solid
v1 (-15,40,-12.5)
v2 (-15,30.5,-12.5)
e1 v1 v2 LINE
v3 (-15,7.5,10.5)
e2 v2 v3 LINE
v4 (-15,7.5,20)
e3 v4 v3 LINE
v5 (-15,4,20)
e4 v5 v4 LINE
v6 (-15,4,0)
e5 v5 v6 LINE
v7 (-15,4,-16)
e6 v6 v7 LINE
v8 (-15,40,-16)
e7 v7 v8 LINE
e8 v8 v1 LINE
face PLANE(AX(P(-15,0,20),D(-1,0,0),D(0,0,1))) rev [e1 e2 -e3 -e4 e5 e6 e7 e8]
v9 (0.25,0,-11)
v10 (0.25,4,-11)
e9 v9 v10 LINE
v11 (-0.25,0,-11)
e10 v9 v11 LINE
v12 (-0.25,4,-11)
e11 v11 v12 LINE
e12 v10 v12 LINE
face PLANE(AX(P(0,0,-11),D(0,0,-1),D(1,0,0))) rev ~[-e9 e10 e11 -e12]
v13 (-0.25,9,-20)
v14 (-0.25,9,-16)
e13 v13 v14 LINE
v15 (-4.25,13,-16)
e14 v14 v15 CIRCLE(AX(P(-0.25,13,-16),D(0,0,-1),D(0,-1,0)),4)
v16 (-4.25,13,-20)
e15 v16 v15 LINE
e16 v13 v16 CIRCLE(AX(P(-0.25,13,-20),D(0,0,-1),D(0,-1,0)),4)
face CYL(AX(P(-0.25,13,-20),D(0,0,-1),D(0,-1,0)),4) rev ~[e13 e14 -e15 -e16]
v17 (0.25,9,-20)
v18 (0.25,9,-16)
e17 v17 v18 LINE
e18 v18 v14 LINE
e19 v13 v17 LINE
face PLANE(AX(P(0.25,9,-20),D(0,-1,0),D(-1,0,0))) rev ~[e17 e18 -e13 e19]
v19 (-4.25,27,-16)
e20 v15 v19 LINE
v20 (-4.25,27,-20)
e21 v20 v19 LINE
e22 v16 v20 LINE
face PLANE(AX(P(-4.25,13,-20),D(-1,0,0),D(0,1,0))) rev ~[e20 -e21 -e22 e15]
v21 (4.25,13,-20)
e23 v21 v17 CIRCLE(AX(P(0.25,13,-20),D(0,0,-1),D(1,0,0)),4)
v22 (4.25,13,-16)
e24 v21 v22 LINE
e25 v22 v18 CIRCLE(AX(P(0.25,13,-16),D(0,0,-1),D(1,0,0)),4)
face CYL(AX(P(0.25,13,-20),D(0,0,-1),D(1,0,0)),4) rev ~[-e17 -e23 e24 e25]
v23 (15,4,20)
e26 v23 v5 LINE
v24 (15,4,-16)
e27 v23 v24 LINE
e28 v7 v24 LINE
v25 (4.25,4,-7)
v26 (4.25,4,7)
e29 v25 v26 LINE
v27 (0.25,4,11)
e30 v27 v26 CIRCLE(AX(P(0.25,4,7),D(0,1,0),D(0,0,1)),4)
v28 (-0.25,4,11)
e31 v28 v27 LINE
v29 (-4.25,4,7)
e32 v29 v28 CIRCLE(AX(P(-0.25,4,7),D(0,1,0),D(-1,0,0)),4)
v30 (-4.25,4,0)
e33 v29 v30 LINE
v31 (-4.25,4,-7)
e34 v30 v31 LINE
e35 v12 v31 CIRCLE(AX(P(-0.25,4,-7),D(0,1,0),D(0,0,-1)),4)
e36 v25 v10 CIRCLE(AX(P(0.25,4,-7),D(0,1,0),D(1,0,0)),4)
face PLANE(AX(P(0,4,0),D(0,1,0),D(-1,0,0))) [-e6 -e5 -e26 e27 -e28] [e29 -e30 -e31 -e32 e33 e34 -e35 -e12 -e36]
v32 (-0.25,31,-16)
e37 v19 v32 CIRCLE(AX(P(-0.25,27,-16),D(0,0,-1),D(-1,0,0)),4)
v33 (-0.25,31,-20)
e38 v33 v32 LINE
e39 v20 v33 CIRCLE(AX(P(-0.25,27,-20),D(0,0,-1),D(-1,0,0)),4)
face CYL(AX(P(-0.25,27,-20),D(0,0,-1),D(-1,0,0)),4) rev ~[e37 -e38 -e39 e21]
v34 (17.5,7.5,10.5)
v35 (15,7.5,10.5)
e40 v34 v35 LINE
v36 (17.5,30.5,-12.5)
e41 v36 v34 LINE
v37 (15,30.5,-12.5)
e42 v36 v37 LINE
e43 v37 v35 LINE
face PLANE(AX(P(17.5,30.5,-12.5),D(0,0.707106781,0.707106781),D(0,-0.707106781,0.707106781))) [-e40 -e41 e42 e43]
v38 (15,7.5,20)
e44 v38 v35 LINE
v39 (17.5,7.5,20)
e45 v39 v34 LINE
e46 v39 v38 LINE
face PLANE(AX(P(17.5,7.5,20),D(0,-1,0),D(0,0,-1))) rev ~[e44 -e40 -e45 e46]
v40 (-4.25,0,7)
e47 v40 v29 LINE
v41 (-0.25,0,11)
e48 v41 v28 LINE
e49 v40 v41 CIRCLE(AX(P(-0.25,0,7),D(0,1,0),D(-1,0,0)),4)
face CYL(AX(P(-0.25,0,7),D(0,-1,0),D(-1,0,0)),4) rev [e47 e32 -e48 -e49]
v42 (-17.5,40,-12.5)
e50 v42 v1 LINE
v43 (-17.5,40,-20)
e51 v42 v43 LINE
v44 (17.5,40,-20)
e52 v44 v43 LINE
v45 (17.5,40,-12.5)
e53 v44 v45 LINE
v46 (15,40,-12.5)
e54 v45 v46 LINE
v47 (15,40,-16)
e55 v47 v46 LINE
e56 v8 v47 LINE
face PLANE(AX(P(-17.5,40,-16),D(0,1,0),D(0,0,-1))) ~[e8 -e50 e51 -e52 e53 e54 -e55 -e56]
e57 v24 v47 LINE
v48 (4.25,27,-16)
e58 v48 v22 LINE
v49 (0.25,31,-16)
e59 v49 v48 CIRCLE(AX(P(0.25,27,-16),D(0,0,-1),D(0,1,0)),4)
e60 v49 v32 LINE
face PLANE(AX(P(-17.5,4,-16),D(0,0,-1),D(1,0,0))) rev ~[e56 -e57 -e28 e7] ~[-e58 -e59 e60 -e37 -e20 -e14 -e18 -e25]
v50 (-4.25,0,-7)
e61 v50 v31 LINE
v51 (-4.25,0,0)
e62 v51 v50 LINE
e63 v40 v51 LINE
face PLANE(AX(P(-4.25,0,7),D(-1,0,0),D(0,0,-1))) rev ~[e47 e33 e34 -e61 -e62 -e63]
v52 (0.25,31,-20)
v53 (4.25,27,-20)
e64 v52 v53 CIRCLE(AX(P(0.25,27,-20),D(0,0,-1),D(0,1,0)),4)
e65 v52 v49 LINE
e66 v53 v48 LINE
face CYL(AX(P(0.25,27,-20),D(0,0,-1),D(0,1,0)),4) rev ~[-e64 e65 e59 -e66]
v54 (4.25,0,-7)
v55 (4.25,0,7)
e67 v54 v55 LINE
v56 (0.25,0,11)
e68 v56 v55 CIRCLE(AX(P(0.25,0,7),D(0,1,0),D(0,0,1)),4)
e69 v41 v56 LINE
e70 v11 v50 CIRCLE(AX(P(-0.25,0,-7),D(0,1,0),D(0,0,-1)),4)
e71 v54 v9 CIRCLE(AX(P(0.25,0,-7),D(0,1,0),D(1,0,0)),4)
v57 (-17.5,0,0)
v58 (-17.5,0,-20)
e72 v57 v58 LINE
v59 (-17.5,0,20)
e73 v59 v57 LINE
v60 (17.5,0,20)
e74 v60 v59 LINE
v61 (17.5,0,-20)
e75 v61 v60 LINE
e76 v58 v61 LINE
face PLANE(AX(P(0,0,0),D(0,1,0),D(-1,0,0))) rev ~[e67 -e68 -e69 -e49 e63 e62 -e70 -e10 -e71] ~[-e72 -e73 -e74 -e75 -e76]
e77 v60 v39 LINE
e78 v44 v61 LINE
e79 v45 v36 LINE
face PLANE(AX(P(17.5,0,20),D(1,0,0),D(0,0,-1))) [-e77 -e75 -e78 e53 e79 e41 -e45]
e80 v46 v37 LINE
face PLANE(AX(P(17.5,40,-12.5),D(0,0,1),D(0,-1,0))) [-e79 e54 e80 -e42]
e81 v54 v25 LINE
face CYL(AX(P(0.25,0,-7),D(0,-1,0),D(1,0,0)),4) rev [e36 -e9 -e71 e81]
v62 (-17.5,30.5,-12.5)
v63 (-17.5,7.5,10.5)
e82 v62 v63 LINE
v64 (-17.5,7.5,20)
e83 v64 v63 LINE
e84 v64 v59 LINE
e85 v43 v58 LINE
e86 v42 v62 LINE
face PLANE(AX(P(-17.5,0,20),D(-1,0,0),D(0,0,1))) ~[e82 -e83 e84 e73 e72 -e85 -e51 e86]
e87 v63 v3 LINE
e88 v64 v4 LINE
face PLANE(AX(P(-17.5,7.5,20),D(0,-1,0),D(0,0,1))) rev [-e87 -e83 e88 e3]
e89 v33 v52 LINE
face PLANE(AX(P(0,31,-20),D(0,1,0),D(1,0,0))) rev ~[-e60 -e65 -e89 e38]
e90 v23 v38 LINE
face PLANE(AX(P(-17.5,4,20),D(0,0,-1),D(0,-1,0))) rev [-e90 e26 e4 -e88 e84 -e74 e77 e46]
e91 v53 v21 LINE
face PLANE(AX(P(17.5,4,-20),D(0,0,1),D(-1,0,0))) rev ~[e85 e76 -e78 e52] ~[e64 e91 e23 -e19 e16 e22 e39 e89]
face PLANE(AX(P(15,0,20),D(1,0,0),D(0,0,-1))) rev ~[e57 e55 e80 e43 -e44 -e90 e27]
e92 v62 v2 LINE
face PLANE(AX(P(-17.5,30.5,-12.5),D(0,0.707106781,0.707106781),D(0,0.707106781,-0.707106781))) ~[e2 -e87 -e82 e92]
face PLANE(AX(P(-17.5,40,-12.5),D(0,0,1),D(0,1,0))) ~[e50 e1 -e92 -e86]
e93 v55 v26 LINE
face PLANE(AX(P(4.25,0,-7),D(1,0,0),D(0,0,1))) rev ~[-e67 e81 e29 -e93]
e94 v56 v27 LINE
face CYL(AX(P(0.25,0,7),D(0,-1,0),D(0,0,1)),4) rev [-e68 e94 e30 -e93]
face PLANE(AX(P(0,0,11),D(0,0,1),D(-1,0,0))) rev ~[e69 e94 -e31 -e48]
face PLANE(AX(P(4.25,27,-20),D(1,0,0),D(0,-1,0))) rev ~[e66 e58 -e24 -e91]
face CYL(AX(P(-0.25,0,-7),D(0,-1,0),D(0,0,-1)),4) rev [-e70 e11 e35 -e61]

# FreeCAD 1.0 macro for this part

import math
import FreeCAD as App
import Part
import Sketcher

doc = App.newDocument("Part")
params = doc.addObject("Spreadsheet::Sheet", "Params")
for row, (alias, value) in enumerate([
    ("sketch1_radius", "4 mm"),
    ("sketch1_width", "35 mm"),
    ("sketch1_height", "20 mm"),
    ("pad1_length", "4 mm"),
    ("sketch2_height", "4 mm"),
    ("sketch2_width", "35 mm"),
    ("pad2_length", "36 mm"),
    ("sketch3_radius", "4 mm"),
    ("sketch3_height", "14 mm"),
    ("pocket1_length", "4 mm"),
    ("sketch4_width", "3.5 mm"),
    ("sketch4_width2", "9.5 mm"),
    ("sketch4_width3", "36 mm"),
    ("pad3_length", "2.5 mm"),
], start=1):
    params.set(f"A{row}", alias)
    params.set(f"B{row}", "=" + value)
    params.setAlias(f"B{row}", alias)

body = doc.addObject("PartDesign::Body", "Body")

# Sketch on XZ plane
sketch1 = doc.addObject("Sketcher::SketchObject", "Sketch")
body.addObject(sketch1)
sketch1.AttachmentSupport = (doc.XZ_Plane, [""])
sketch1.MapMode = "FlatFace"
sketch1.addGeometry([
    Part.LineSegment(App.Vector(-17.5, -20, 0), App.Vector(-17.5, 0, 0)),  # 0
    Part.LineSegment(App.Vector(-17.5, 0, 0), App.Vector(-17.5, 20, 0)),  # 1
    Part.LineSegment(App.Vector(-17.5, 20, 0), App.Vector(17.5, 20, 0)),  # 2
    Part.LineSegment(App.Vector(17.5, 20, 0), App.Vector(17.5, -20, 0)),  # 3
    Part.LineSegment(App.Vector(17.5, -20, 0), App.Vector(-17.5, -20, 0)),  # 4
    Part.LineSegment(App.Vector(-4.25, 7, 0), App.Vector(-4.25, 0, 0)),  # 5
    Part.LineSegment(App.Vector(-4.25, 0, 0), App.Vector(-4.25, -7, 0)),  # 6
    Part.ArcOfCircle(Part.Circle(App.Vector(-0.25, -7, 0), App.Vector(0, 0, 1), 4), math.radians(180), math.radians(270)),  # 7
    Part.LineSegment(App.Vector(-0.25, -11, 0), App.Vector(0.25, -11, 0)),  # 8
    Part.ArcOfCircle(Part.Circle(App.Vector(0.25, -7, 0), App.Vector(0, 0, 1), 4), math.radians(-90), math.radians(0)),  # 9
    Part.LineSegment(App.Vector(4.25, -7, 0), App.Vector(4.25, 7, 0)),  # 10
    Part.ArcOfCircle(Part.Circle(App.Vector(0.25, 7, 0), App.Vector(0, 0, 1), 4), math.radians(0), math.radians(90)),  # 11
    Part.LineSegment(App.Vector(0.25, 11, 0), App.Vector(-0.25, 11, 0)),  # 12
    Part.ArcOfCircle(Part.Circle(App.Vector(-0.25, 7, 0), App.Vector(0, 0, 1), 4), math.radians(90), math.radians(180)),  # 13
], False)
sketch1.addConstraint([
    Sketcher.Constraint("Coincident", 0, 2, 1, 1),
    Sketcher.Constraint("Coincident", 1, 2, 2, 1),
    Sketcher.Constraint("Coincident", 2, 2, 3, 1),
    Sketcher.Constraint("Coincident", 3, 2, 4, 1),
    Sketcher.Constraint("Coincident", 4, 2, 0, 1),
    Sketcher.Constraint("Coincident", 5, 2, 6, 1),
    Sketcher.Constraint("Tangent", 6, 2, 7, 1),
    Sketcher.Constraint("Tangent", 7, 2, 8, 1),
    Sketcher.Constraint("Tangent", 8, 2, 9, 1),
    Sketcher.Constraint("Tangent", 9, 2, 10, 1),
    Sketcher.Constraint("Tangent", 10, 2, 11, 1),
    Sketcher.Constraint("Tangent", 11, 2, 12, 1),
    Sketcher.Constraint("Tangent", 12, 2, 13, 1),
    Sketcher.Constraint("Tangent", 13, 2, 5, 1),
    Sketcher.Constraint("Vertical", 0),
    Sketcher.Constraint("Vertical", 1),
    Sketcher.Constraint("Horizontal", 2),
    Sketcher.Constraint("Vertical", 3),
    Sketcher.Constraint("Horizontal", 4),
    Sketcher.Constraint("Vertical", 5),
    Sketcher.Constraint("Vertical", 6),
    Sketcher.Constraint("Horizontal", 8),
    Sketcher.Constraint("Vertical", 10),
    Sketcher.Constraint("Horizontal", 12),
    Sketcher.Constraint("Equal", 7, 9),
    Sketcher.Constraint("Equal", 9, 11),
    Sketcher.Constraint("Equal", 11, 13),
    Sketcher.Constraint("Symmetric", 7, 3, 11, 3, -1, 1),
    Sketcher.Constraint("Symmetric", 1, 2, 3, 2, -1, 1),
    Sketcher.Constraint("PointOnObject", 0, 2, -1),
    Sketcher.Constraint("PointOnObject", 5, 2, -1),
    Sketcher.Constraint("Radius", 7, 4.0),
    Sketcher.Constraint("DistanceX", 2, 1, 2, 2, 35.0),
    Sketcher.Constraint("DistanceY", 0, 1, 0, 2, 20.0),
    Sketcher.Constraint("DistanceY", 7, 2, -1, 1, 11.0),
    Sketcher.Constraint("DistanceX", 6, 2, 9, 2, 8.5),
])
sketch1.setExpression("Constraints[31]", "Params.sketch1_radius")
sketch1.setExpression("Constraints[32]", "Params.sketch1_width")
sketch1.setExpression("Constraints[33]", "Params.sketch1_height")
pad1 = doc.addObject("PartDesign::Pad", "Pad")
body.addObject(pad1)
pad1.Profile = sketch1
pad1.setExpression("Length", "Params.pad1_length")
pad1.Reversed = True

# Sketch on XZ plane
sketch2 = doc.addObject("Sketcher::SketchObject", "Sketch001")
body.addObject(sketch2)
sketch2.AttachmentSupport = (doc.XZ_Plane, [""])
sketch2.MapMode = "FlatFace"
sketch2.AttachmentOffset = App.Placement(App.Vector(0, 0, -4), App.Rotation())
sketch2.addGeometry([
    Part.LineSegment(App.Vector(-17.5, -20, 0), App.Vector(-17.5, -16, 0)),
    Part.LineSegment(App.Vector(-17.5, -16, 0), App.Vector(17.5, -16, 0)),
    Part.LineSegment(App.Vector(17.5, -16, 0), App.Vector(17.5, -20, 0)),
    Part.LineSegment(App.Vector(17.5, -20, 0), App.Vector(-17.5, -20, 0)),
], False)
sketch2.addConstraint([
    Sketcher.Constraint("Coincident", 0, 2, 1, 1),
    Sketcher.Constraint("Coincident", 1, 2, 2, 1),
    Sketcher.Constraint("Coincident", 2, 2, 3, 1),
    Sketcher.Constraint("Coincident", 3, 2, 0, 1),
    Sketcher.Constraint("Vertical", 0),
    Sketcher.Constraint("Horizontal", 1),
    Sketcher.Constraint("Vertical", 2),
    Sketcher.Constraint("Horizontal", 3),
    Sketcher.Constraint("DistanceY", 0, 1, 0, 2, 4.0),
    Sketcher.Constraint("DistanceX", 1, 1, 1, 2, 35.0),
    Sketcher.Constraint("DistanceY", 0, 2, -1, 1, 16.0),
    Sketcher.Constraint("DistanceX", 0, 2, -1, 1, 17.5),
])
sketch2.setExpression("Constraints[8]", "Params.sketch2_height")
sketch2.setExpression("Constraints[9]", "Params.sketch2_width")
pad2 = doc.addObject("PartDesign::Pad", "Pad001")
body.addObject(pad2)
pad2.Profile = sketch2
pad2.setExpression("Length", "Params.pad2_length")
pad2.Reversed = True

# Sketch on XY plane
sketch3 = doc.addObject("Sketcher::SketchObject", "Sketch002")
body.addObject(sketch3)
sketch3.AttachmentSupport = (doc.XY_Plane, [""])
sketch3.MapMode = "FlatFace"
sketch3.AttachmentOffset = App.Placement(App.Vector(0, 0, -20), App.Rotation())
sketch3.addGeometry([
    Part.LineSegment(App.Vector(0.25, 9, 0), App.Vector(-0.25, 9, 0)),  # 0
    Part.ArcOfCircle(Part.Circle(App.Vector(-0.25, 13, 0), App.Vector(0, 0, 1), 4), math.radians(180), math.radians(270)),  # 1
    Part.LineSegment(App.Vector(-4.25, 13, 0), App.Vector(-4.25, 27, 0)),  # 2
    Part.ArcOfCircle(Part.Circle(App.Vector(-0.25, 27, 0), App.Vector(0, 0, 1), 4), math.radians(90), math.radians(180)),  # 3
    Part.LineSegment(App.Vector(-0.25, 31, 0), App.Vector(0.25, 31, 0)),  # 4
    Part.ArcOfCircle(Part.Circle(App.Vector(0.25, 27, 0), App.Vector(0, 0, 1), 4), math.radians(0), math.radians(90)),  # 5
    Part.LineSegment(App.Vector(4.25, 27, 0), App.Vector(4.25, 13, 0)),  # 6
    Part.ArcOfCircle(Part.Circle(App.Vector(0.25, 13, 0), App.Vector(0, 0, 1), 4), math.radians(-90), math.radians(0)),  # 7
], False)
sketch3.addConstraint([
    Sketcher.Constraint("Tangent", 0, 2, 1, 2),
    Sketcher.Constraint("Tangent", 1, 1, 2, 1),
    Sketcher.Constraint("Tangent", 2, 2, 3, 2),
    Sketcher.Constraint("Tangent", 3, 1, 4, 1),
    Sketcher.Constraint("Tangent", 4, 2, 5, 2),
    Sketcher.Constraint("Tangent", 5, 1, 6, 1),
    Sketcher.Constraint("Tangent", 6, 2, 7, 2),
    Sketcher.Constraint("Tangent", 7, 1, 0, 1),
    Sketcher.Constraint("Horizontal", 0),
    Sketcher.Constraint("Vertical", 2),
    Sketcher.Constraint("Horizontal", 4),
    Sketcher.Constraint("Vertical", 6),
    Sketcher.Constraint("Equal", 1, 3),
    Sketcher.Constraint("Equal", 3, 5),
    Sketcher.Constraint("Equal", 5, 7),
    Sketcher.Constraint("Radius", 1, 4.0),
    Sketcher.Constraint("DistanceX", 2, 2, 5, 1, 8.5),
    Sketcher.Constraint("DistanceY", 2, 1, 2, 2, 14.0),
    Sketcher.Constraint("DistanceX", 1, 1, -1, 1, 4.25),
    Sketcher.Constraint("DistanceY", -1, 1, 1, 3, 13.0),
])
sketch3.setExpression("Constraints[15]", "Params.sketch3_radius")
sketch3.setExpression("Constraints[17]", "Params.sketch3_height")
pocket1 = doc.addObject("PartDesign::Pocket", "Pocket")
body.addObject(pocket1)
pocket1.Profile = sketch3
pocket1.setExpression("Length", "Params.pocket1_length")
pocket1.Reversed = True

# Sketch on YZ plane
sketch4 = doc.addObject("Sketcher::SketchObject", "Sketch003")
body.addObject(sketch4)
sketch4.AttachmentSupport = (doc.YZ_Plane, [""])
sketch4.MapMode = "FlatFace"
sketch4.AttachmentOffset = App.Placement(App.Vector(0, 0, 17.5), App.Rotation())
sketch4.addGeometry([
    Part.LineSegment(App.Vector(7.5, 20, 0), App.Vector(4, 20, 0)),  # 0
    Part.LineSegment(App.Vector(4, 20, 0), App.Vector(4, -16, 0)),  # 1
    Part.LineSegment(App.Vector(4, -16, 0), App.Vector(40, -16, 0)),  # 2
    Part.LineSegment(App.Vector(40, -16, 0), App.Vector(40, -12.5, 0)),  # 3
    Part.LineSegment(App.Vector(40, -12.5, 0), App.Vector(30.5, -12.5, 0)),  # 4
    Part.LineSegment(App.Vector(30.5, -12.5, 0), App.Vector(7.5, 10.5, 0)),  # 5
    Part.LineSegment(App.Vector(7.5, 10.5, 0), App.Vector(7.5, 20, 0)),  # 6
], False)
sketch4.addConstraint([
    Sketcher.Constraint("Coincident", 0, 2, 1, 1),
    Sketcher.Constraint("Coincident", 1, 2, 2, 1),
    Sketcher.Constraint("Coincident", 2, 2, 3, 1),
    Sketcher.Constraint("Coincident", 3, 2, 4, 1),
    Sketcher.Constraint("Coincident", 4, 2, 5, 1),
    Sketcher.Constraint("Coincident", 5, 2, 6, 1),
    Sketcher.Constraint("Coincident", 6, 2, 0, 1),
    Sketcher.Constraint("Horizontal", 0),
    Sketcher.Constraint("Vertical", 1),
    Sketcher.Constraint("Horizontal", 2),
    Sketcher.Constraint("Vertical", 3),
    Sketcher.Constraint("Horizontal", 4),
    Sketcher.Constraint("Vertical", 6),
    Sketcher.Constraint("Equal", 2, 1),
    Sketcher.Constraint("Equal", 0, 3),
    Sketcher.Constraint("Equal", 4, 6),
    Sketcher.Constraint("DistanceX", 0, 2, 0, 1, 3.5),
    Sketcher.Constraint("DistanceX", 4, 2, 4, 1, 9.5),
    Sketcher.Constraint("DistanceX", 2, 1, 2, 2, 36.0),
    Sketcher.Constraint("DistanceX", -1, 1, 0, 2, 4.0),
    Sketcher.Constraint("DistanceY", -1, 1, 0, 2, 20.0),
])
sketch4.setExpression("Constraints[16]", "Params.sketch4_width")
sketch4.setExpression("Constraints[17]", "Params.sketch4_width2")
sketch4.setExpression("Constraints[18]", "Params.sketch4_width3")
pad3 = doc.addObject("PartDesign::Pad", "Pad002")
body.addObject(pad3)
pad3.Profile = sketch4
pad3.setExpression("Length", "Params.pad3_length")
pad3.Reversed = True
doc.recompute()

mirrored = doc.addObject("PartDesign::Mirrored", "Mirrored")
body.addObject(mirrored)
mirrored.Originals = [pad3]
mirrored.MirrorPlane = (doc.YZ_Plane, [""])
body.Tip = mirrored

doc.recompute()
